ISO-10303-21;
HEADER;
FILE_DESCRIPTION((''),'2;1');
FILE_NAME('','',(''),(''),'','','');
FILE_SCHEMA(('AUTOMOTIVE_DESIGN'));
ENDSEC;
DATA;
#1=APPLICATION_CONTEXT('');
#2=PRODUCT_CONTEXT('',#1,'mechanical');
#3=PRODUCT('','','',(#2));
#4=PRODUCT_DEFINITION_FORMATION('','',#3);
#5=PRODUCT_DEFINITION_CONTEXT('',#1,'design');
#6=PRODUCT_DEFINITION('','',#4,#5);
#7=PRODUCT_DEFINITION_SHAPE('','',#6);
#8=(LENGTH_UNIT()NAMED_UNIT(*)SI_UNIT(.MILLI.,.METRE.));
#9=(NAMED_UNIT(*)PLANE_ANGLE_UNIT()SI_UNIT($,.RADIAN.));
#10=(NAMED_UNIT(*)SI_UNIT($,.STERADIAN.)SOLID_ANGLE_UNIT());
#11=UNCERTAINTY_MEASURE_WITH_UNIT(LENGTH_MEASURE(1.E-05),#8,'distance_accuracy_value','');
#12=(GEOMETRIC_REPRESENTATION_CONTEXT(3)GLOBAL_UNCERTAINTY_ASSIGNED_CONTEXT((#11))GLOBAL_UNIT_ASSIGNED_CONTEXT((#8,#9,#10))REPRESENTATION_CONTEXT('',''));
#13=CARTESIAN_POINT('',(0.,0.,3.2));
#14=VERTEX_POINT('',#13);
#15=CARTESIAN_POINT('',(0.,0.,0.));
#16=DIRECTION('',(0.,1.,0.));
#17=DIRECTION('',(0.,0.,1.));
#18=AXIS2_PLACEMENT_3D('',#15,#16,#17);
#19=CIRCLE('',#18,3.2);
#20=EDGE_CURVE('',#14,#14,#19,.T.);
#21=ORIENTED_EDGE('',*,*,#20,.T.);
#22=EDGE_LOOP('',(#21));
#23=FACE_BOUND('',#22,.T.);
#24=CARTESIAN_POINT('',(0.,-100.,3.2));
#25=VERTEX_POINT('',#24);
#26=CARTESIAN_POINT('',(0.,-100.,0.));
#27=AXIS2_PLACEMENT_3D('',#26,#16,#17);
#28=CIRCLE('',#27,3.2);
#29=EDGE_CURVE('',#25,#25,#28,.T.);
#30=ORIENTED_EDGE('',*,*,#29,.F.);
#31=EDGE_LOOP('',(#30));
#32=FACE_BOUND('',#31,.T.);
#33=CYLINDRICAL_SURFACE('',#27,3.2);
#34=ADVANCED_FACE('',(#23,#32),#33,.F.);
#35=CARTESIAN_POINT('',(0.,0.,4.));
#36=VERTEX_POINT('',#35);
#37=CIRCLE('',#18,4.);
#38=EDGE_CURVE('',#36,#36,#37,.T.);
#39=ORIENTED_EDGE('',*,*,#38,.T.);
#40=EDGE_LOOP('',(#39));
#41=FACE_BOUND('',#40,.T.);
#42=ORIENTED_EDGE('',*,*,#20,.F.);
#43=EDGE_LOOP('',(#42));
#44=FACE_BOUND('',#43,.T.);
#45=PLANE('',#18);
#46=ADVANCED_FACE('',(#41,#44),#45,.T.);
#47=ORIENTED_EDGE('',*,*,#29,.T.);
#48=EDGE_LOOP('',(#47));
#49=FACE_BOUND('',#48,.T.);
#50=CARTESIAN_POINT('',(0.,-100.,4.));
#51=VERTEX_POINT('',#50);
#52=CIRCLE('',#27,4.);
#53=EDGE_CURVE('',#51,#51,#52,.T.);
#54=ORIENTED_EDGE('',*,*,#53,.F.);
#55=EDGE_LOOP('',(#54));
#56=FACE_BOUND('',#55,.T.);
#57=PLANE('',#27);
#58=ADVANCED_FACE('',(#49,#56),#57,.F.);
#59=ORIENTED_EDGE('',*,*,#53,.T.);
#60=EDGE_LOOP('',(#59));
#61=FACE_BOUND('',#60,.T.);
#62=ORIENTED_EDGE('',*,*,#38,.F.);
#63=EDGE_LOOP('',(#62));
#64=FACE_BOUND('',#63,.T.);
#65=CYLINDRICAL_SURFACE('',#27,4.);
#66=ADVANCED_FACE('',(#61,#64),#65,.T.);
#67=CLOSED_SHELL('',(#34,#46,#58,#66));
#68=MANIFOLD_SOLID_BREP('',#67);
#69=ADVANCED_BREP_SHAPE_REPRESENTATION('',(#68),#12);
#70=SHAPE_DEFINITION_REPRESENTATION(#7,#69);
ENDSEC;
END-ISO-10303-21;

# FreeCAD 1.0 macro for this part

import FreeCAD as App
import Part
import Sketcher
from FreeCAD import Vector

doc = App.newDocument("Part")
body = doc.addObject("PartDesign::Body", "Body")

# Sketch on XZ plane
sketch1 = doc.addObject("Sketcher::SketchObject", "Sketch")
body.addObject(sketch1)
sketch1.AttachmentSupport = (doc.XZ_Plane, [""])
sketch1.MapMode = "FlatFace"
sketch1.addGeometry(Part.Circle(Vector(0, 0, 0), Vector(0, 0, 1), 4), False)
sketch1.addConstraint([
    Sketcher.Constraint("Coincident", 0, 3, -1, 1),
    Sketcher.Constraint("Diameter", 0, 8.0),
])
pad1 = doc.addObject("PartDesign::Pad", "Pad")
body.addObject(pad1)
pad1.Profile = sketch1
pad1.Length = 100

# Sketch on XZ plane
sketch2 = doc.addObject("Sketcher::SketchObject", "Sketch001")
body.addObject(sketch2)
sketch2.AttachmentSupport = (doc.XZ_Plane, [""])
sketch2.MapMode = "FlatFace"
sketch2.addGeometry(Part.Circle(Vector(0, 0, 0), Vector(0, 0, 1), 3.2), False)
sketch2.addConstraint([
    Sketcher.Constraint("Coincident", 0, 3, -1, 1),
    Sketcher.Constraint("Diameter", 0, 6.4),
])
pocket1 = doc.addObject("PartDesign::Pocket", "Pocket")
body.addObject(pocket1)
pocket1.Profile = sketch2
pocket1.Type = "ThroughAll"
pocket1.Reversed = True

doc.recompute()
